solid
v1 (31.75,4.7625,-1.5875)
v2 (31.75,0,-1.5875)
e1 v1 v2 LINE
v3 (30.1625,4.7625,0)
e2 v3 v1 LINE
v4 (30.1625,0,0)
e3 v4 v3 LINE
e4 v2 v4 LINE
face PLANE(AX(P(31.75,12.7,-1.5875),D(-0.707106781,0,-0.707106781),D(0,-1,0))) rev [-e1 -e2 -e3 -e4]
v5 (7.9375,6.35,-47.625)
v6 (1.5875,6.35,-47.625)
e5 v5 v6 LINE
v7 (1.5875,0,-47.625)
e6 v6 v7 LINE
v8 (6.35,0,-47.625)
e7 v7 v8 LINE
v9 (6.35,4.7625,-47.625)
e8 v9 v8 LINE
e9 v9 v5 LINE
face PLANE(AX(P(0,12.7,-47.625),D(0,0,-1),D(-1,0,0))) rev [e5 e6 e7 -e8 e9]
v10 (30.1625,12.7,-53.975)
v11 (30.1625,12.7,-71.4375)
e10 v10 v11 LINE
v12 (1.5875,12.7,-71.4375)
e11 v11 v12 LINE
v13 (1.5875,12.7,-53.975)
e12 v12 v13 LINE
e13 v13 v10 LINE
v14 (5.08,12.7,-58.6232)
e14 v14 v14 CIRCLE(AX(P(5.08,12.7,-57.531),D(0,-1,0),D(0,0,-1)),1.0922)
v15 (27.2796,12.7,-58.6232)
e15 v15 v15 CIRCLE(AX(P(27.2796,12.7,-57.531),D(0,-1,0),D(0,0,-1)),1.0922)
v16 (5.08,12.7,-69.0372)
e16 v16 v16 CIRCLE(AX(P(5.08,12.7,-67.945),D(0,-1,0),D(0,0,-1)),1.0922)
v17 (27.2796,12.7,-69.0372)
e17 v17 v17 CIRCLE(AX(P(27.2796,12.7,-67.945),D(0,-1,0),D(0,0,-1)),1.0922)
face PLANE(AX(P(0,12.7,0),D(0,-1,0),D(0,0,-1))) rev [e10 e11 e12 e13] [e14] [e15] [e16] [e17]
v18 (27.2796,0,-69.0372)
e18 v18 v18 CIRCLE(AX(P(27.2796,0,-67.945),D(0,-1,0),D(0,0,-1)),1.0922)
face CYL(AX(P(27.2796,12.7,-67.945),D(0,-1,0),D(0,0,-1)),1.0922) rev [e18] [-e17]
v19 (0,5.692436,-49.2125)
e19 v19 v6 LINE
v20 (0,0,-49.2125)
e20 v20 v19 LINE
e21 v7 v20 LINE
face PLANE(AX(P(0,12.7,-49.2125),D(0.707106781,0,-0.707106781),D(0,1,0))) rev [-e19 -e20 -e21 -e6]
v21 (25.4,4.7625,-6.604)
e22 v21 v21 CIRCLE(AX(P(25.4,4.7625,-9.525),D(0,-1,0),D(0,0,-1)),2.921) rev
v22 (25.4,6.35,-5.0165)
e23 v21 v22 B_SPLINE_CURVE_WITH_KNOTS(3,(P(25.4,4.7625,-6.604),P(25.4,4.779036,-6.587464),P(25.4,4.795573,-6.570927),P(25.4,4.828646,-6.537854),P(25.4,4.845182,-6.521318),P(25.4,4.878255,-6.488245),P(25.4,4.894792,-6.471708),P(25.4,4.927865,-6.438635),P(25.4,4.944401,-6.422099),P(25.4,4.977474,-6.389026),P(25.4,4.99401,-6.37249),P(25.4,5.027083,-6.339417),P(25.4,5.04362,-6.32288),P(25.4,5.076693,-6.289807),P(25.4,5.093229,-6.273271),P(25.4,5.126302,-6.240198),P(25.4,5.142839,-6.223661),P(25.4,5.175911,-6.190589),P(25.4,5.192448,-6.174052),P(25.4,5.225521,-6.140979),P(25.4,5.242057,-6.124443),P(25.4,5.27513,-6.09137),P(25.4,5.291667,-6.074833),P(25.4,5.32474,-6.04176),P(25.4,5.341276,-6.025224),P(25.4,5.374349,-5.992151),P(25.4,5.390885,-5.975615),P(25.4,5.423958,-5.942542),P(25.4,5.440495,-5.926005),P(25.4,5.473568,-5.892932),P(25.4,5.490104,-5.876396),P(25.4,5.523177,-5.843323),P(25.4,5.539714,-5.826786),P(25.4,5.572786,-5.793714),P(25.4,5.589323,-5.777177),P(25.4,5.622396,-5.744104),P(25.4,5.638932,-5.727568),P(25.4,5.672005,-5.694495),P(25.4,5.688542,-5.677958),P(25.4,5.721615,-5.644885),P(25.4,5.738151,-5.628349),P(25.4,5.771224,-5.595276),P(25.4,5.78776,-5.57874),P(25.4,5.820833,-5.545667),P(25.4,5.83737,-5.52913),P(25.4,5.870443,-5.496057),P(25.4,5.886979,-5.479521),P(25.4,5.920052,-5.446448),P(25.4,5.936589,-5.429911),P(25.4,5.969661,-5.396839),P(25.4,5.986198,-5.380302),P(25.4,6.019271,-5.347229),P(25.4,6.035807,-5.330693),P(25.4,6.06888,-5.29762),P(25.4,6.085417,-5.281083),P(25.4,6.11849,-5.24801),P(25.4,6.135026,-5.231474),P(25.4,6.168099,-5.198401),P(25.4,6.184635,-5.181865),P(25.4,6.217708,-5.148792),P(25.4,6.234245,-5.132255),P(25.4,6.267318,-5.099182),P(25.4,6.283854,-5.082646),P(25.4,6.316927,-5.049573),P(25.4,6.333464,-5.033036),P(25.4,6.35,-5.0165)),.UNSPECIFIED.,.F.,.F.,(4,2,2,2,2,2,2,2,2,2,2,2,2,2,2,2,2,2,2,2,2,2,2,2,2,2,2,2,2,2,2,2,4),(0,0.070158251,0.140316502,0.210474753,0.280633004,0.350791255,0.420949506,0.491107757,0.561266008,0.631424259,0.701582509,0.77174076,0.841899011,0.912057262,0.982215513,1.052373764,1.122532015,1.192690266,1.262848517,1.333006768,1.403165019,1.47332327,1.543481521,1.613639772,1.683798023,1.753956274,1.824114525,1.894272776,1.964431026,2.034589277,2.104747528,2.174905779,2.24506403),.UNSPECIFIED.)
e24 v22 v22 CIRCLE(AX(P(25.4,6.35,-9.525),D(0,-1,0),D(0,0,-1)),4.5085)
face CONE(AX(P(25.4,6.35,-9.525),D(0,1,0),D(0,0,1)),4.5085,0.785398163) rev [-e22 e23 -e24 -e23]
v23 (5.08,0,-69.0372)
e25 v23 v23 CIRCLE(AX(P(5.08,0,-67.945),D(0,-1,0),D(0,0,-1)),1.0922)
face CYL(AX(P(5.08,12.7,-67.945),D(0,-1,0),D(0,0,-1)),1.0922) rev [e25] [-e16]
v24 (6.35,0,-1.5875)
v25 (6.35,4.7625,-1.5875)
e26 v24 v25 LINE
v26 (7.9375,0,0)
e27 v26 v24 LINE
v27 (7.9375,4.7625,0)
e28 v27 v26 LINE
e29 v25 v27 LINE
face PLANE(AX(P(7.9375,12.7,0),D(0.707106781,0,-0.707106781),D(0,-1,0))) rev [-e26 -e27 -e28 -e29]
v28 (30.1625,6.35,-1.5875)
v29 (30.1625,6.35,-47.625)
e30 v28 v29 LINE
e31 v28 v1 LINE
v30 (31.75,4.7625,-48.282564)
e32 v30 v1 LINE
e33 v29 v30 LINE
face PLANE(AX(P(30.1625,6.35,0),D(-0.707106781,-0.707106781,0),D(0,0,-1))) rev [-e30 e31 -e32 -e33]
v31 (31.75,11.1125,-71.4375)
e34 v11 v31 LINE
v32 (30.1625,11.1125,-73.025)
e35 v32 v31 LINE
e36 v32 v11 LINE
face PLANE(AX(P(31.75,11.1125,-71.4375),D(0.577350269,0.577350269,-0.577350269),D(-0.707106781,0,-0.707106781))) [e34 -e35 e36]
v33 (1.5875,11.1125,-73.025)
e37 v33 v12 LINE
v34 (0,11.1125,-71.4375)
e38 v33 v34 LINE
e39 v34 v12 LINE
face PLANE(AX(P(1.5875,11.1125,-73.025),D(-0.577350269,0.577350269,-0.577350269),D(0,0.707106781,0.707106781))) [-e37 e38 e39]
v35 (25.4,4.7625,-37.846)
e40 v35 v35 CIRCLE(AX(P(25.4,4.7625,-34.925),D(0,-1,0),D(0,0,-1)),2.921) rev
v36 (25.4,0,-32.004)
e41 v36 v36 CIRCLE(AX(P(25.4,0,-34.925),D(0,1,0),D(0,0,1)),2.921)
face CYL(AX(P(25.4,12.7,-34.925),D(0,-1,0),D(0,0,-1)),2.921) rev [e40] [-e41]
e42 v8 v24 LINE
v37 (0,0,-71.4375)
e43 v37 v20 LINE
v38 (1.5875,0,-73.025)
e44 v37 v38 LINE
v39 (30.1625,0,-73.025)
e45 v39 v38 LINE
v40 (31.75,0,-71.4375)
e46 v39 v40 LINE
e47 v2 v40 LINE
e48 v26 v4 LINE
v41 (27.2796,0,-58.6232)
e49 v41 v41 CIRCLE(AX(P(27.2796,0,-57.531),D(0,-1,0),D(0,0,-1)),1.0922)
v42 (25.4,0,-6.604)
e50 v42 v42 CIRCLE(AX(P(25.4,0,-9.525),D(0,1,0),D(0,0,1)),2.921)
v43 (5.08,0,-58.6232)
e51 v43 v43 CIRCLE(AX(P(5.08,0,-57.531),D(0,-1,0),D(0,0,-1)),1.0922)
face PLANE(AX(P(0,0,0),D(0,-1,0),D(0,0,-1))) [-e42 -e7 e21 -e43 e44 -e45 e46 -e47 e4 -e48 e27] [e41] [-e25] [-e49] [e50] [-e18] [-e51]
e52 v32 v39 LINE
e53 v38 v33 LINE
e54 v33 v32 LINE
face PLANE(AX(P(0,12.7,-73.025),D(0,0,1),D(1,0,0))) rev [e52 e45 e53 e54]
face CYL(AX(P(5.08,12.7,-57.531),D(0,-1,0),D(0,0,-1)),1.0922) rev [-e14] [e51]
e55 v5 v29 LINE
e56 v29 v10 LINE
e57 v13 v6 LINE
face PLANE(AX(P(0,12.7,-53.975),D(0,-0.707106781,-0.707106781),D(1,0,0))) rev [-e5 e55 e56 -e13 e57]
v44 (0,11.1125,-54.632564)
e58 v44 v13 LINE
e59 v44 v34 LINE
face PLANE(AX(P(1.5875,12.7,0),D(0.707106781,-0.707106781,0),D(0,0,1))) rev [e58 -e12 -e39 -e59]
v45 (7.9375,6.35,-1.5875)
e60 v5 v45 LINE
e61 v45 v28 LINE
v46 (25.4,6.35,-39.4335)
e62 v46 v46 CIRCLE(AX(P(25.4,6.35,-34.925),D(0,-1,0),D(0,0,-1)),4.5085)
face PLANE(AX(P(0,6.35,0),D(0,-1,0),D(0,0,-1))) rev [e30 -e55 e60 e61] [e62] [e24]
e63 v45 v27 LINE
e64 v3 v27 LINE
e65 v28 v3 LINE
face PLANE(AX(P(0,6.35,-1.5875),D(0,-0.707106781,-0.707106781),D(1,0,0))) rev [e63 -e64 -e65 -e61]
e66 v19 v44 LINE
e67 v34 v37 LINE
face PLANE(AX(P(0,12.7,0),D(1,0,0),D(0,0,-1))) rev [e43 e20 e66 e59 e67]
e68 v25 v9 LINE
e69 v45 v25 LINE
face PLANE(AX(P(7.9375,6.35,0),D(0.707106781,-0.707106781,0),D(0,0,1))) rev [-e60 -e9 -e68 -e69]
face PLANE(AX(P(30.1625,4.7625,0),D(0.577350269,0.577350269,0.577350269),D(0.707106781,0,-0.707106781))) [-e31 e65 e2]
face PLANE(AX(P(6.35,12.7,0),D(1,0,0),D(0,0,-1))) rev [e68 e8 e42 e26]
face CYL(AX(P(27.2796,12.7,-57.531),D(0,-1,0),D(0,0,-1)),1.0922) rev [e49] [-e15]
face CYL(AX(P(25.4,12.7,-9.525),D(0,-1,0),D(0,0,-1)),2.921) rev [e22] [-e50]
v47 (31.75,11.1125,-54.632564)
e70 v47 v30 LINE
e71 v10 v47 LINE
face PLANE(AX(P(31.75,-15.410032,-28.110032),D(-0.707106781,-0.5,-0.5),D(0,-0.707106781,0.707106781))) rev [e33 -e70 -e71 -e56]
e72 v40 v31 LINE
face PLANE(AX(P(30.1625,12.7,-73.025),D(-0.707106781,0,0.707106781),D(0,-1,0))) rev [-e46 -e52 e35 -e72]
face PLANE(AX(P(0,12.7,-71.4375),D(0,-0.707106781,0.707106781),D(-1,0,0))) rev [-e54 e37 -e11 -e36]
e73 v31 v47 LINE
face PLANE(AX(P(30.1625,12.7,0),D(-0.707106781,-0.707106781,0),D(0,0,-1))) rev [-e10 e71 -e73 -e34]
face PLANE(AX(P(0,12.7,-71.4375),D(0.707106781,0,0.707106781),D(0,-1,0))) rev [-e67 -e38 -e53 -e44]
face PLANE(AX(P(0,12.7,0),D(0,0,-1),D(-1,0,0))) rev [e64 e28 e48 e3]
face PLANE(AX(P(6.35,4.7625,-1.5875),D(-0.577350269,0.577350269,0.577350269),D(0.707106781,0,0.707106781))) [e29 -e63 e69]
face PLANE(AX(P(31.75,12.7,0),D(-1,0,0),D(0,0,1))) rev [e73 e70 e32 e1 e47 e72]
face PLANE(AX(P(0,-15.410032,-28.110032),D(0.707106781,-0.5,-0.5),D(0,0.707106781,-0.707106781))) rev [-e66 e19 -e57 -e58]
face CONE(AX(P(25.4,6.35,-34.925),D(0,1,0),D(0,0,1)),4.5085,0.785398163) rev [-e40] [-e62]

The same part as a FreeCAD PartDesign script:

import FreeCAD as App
import Part
import Sketcher
from FreeCAD import Vector
Q = App.Units.Quantity


def edges_at(feature, points):
    """Names of the edges that pass closest to the given points."""
    edges = feature.Shape.Edges
    near = lambda p: min(range(len(edges)), key=lambda i: edges[i].distToShape(Part.Vertex(*p))[0])
    return sorted({f"Edge{near(p) + 1}" for p in points})


def add_polygon(sketch, points):
    """Adds a closed chain of lines whose ends are joined by coincident constraints."""
    first, n = sketch.GeometryCount, len(points)
    for a, b in zip(points, points[1:] + points[:1]):
        sketch.addGeometry(Part.LineSegment(App.Vector(*a, 0), App.Vector(*b, 0)), False)
    for i in range(n):
        sketch.addConstraint(Sketcher.Constraint("Coincident", first + i, 2, first + (i + 1) % n, 1))

doc = App.newDocument("Part")
body = doc.addObject("PartDesign::Body", "Body")

sketch1 = body.newObject("Sketcher::SketchObject", "Sketch")
sketch1.AttachmentSupport = (doc.getObject("XZ_Plane"), [""])
sketch1.MapMode = "FlatFace"
add_polygon(sketch1, [(0, -73), (0, 0), (31.8, 0), (31.8, -73)])
sketch1.addGeometry(Part.Circle(Vector(25.4, -9.5, 0), Vector(0, 0, 1), 2.9), False)
sketch1.addGeometry(Part.Circle(Vector(25.4, -34.9, 0), Vector(0, 0, 1), 2.9), False)
sketch1.addConstraint(Sketcher.Constraint("Vertical", 0))
sketch1.addConstraint(Sketcher.Constraint("Horizontal", 1))
sketch1.addConstraint(Sketcher.Constraint("Vertical", 2))
sketch1.addConstraint(Sketcher.Constraint("Horizontal", 3))
sketch1.addConstraint(Sketcher.Constraint("Coincident", 0, 2, -1, 1))
sketch1.addConstraint(Sketcher.Constraint("Equal", 4, 5))
sketch1.addConstraint(Sketcher.Constraint("Vertical", 4, 3, 5, 3))
sketch1.addConstraint(Sketcher.Constraint("Diameter", 4, Q("0.23 in")))
sketch1.addConstraint(Sketcher.Constraint("DistanceX", -1, 1, 4, 3, Q("1 in")))
sketch1.addConstraint(Sketcher.Constraint("DistanceY", 5, 3, 4, 3, Q("1 in")))
sketch1.addConstraint(Sketcher.Constraint("DistanceX", 1, 1, 1, 2, Q("1.25 in")))
sketch1.addConstraint(Sketcher.Constraint("DistanceY", 2, 2, 5, 3, Q("1.5 in")))
sketch1.addConstraint(Sketcher.Constraint("DistanceY", 0, 1, 0, 2, Q("2.875 in")))
pad1 = body.newObject("PartDesign::Pad", "Pad")
pad1.Profile = sketch1
pad1.Length = Q("0.5 in")
pad1.Reversed = True

sketch2 = body.newObject("Sketcher::SketchObject", "Sketch001")
sketch2.AttachmentSupport = (doc.getObject("YZ_Plane"), [""])
sketch2.MapMode = "FlatFace"
sketch2.AttachmentOffset = App.Placement(Vector(0, 0, 1.25 * 25.4), App.Rotation())
add_polygon(sketch2, [(13, 0), (6, 0), (6, -48), (13, -48)])
sketch2.addConstraint(Sketcher.Constraint("Horizontal", 0))
sketch2.addConstraint(Sketcher.Constraint("Vertical", 1))
sketch2.addConstraint(Sketcher.Constraint("Horizontal", 2))
sketch2.addConstraint(Sketcher.Constraint("Vertical", 3))
sketch2.addConstraint(Sketcher.Constraint("PointOnObject", 0, 2, -1))
sketch2.addConstraint(Sketcher.Constraint("DistanceX", 0, 2, 0, 1, Q("0.25 in")))
sketch2.addConstraint(Sketcher.Constraint("DistanceX", -1, 1, 2, 2, Q("0.5 in")))
sketch2.addConstraint(Sketcher.Constraint("DistanceY", 1, 2, 1, 1, Q("1.875 in")))
pocket1 = body.newObject("PartDesign::Pocket", "Pocket")
pocket1.Profile = sketch2
pocket1.Type = "ThroughAll"

sketch3 = body.newObject("Sketcher::SketchObject", "Sketch002")
sketch3.AttachmentSupport = (doc.getObject("XZ_Plane"), [""])
sketch3.MapMode = "FlatFace"
sketch3.addGeometry(Part.Circle(Vector(27.3, -57.5, 0), Vector(0, 0, 1), 1.1), False)
sketch3.addGeometry(Part.Circle(Vector(5.1, -67.9, 0), Vector(0, 0, 1), 1.1), False)
sketch3.addGeometry(Part.Circle(Vector(27.3, -67.9, 0), Vector(0, 0, 1), 1.1), False)
sketch3.addGeometry(Part.Circle(Vector(5.1, -57.5, 0), Vector(0, 0, 1), 1.1), False)
add_polygon(sketch3, [(0, 0), (0, -47.6), (6.3, -47.6), (6.3, 0)])
sketch3.addConstraint(Sketcher.Constraint("Vertical", 4))
sketch3.addConstraint(Sketcher.Constraint("Horizontal", 5))
sketch3.addConstraint(Sketcher.Constraint("Vertical", 6))
sketch3.addConstraint(Sketcher.Constraint("Horizontal", 7))
sketch3.addConstraint(Sketcher.Constraint("Coincident", 7, 2, -1, 1))
sketch3.addConstraint(Sketcher.Constraint("Equal", 0, 1))
sketch3.addConstraint(Sketcher.Constraint("Equal", 1, 2))
sketch3.addConstraint(Sketcher.Constraint("Equal", 2, 3))
sketch3.addConstraint(Sketcher.Constraint("Horizontal", 1, 3, 2, 3))
sketch3.addConstraint(Sketcher.Constraint("Horizontal", 0, 3, 3, 3))
sketch3.addConstraint(Sketcher.Constraint("Vertical", 0, 3, 2, 3))
sketch3.addConstraint(Sketcher.Constraint("Vertical", 1, 3, 3, 3))
sketch3.addConstraint(Sketcher.Constraint("Diameter", 0, Q("0.086 in")))
sketch3.addConstraint(Sketcher.Constraint("DistanceX", 5, 1, 5, 2, Q("0.25 in")))
sketch3.addConstraint(Sketcher.Constraint("DistanceX", -1, 1, 1, 3, Q("0.2 in")))
sketch3.addConstraint(Sketcher.Constraint("DistanceY", 1, 3, 4, 2, Q("0.8 in")))
sketch3.addConstraint(Sketcher.Constraint("DistanceY", 4, 2, 4, 1, Q("1.875 in")))
sketch3.addConstraint(Sketcher.Constraint("DistanceY", 1, 3, 0, 3, Q("0.41 in")))
sketch3.addConstraint(Sketcher.Constraint("DistanceX", -1, 1, 0, 3, Q("1.074 in")))
pocket2 = body.newObject("PartDesign::Pocket", "Pocket001")
pocket2.Profile = sketch3
pocket2.Type = "ThroughAll"
doc.recompute()

chamfer = body.newObject("PartDesign::Chamfer", "Chamfer")
chamfer.Base = (pocket2, edges_at(pocket2, [(15.875, 12.7, -47.625)]))
chamfer.Size = Q("0.25 in")
doc.recompute()

chamfer2 = body.newObject("PartDesign::Chamfer", "Chamfer001")
chamfer2.Base = (chamfer, edges_at(chamfer, [
    (15.875, 12.7, -73.025),
    (31.75, 3.175, 0),
    (25.4, 6.35, -12.446),
    (25.4, 6.35, -37.846),
    (0, 3.175, -47.625),
    (31.75, 6.35, -23.812),
    (19.05, 6.35, 0),
    (6.35, 6.35, -23.812),
    (0, 12.7, -63.5),
    (6.35, 3.175, 0),
    (0, 6.35, -73.025),
    (31.75, 6.35, -73.025),
    (31.75, 12.7, -63.5),
    (31.75, 9.525, -50.8),
    (0, 9.525, -50.8),
]))
chamfer2.Size = Q("0.0625 in")

doc.recompute()
